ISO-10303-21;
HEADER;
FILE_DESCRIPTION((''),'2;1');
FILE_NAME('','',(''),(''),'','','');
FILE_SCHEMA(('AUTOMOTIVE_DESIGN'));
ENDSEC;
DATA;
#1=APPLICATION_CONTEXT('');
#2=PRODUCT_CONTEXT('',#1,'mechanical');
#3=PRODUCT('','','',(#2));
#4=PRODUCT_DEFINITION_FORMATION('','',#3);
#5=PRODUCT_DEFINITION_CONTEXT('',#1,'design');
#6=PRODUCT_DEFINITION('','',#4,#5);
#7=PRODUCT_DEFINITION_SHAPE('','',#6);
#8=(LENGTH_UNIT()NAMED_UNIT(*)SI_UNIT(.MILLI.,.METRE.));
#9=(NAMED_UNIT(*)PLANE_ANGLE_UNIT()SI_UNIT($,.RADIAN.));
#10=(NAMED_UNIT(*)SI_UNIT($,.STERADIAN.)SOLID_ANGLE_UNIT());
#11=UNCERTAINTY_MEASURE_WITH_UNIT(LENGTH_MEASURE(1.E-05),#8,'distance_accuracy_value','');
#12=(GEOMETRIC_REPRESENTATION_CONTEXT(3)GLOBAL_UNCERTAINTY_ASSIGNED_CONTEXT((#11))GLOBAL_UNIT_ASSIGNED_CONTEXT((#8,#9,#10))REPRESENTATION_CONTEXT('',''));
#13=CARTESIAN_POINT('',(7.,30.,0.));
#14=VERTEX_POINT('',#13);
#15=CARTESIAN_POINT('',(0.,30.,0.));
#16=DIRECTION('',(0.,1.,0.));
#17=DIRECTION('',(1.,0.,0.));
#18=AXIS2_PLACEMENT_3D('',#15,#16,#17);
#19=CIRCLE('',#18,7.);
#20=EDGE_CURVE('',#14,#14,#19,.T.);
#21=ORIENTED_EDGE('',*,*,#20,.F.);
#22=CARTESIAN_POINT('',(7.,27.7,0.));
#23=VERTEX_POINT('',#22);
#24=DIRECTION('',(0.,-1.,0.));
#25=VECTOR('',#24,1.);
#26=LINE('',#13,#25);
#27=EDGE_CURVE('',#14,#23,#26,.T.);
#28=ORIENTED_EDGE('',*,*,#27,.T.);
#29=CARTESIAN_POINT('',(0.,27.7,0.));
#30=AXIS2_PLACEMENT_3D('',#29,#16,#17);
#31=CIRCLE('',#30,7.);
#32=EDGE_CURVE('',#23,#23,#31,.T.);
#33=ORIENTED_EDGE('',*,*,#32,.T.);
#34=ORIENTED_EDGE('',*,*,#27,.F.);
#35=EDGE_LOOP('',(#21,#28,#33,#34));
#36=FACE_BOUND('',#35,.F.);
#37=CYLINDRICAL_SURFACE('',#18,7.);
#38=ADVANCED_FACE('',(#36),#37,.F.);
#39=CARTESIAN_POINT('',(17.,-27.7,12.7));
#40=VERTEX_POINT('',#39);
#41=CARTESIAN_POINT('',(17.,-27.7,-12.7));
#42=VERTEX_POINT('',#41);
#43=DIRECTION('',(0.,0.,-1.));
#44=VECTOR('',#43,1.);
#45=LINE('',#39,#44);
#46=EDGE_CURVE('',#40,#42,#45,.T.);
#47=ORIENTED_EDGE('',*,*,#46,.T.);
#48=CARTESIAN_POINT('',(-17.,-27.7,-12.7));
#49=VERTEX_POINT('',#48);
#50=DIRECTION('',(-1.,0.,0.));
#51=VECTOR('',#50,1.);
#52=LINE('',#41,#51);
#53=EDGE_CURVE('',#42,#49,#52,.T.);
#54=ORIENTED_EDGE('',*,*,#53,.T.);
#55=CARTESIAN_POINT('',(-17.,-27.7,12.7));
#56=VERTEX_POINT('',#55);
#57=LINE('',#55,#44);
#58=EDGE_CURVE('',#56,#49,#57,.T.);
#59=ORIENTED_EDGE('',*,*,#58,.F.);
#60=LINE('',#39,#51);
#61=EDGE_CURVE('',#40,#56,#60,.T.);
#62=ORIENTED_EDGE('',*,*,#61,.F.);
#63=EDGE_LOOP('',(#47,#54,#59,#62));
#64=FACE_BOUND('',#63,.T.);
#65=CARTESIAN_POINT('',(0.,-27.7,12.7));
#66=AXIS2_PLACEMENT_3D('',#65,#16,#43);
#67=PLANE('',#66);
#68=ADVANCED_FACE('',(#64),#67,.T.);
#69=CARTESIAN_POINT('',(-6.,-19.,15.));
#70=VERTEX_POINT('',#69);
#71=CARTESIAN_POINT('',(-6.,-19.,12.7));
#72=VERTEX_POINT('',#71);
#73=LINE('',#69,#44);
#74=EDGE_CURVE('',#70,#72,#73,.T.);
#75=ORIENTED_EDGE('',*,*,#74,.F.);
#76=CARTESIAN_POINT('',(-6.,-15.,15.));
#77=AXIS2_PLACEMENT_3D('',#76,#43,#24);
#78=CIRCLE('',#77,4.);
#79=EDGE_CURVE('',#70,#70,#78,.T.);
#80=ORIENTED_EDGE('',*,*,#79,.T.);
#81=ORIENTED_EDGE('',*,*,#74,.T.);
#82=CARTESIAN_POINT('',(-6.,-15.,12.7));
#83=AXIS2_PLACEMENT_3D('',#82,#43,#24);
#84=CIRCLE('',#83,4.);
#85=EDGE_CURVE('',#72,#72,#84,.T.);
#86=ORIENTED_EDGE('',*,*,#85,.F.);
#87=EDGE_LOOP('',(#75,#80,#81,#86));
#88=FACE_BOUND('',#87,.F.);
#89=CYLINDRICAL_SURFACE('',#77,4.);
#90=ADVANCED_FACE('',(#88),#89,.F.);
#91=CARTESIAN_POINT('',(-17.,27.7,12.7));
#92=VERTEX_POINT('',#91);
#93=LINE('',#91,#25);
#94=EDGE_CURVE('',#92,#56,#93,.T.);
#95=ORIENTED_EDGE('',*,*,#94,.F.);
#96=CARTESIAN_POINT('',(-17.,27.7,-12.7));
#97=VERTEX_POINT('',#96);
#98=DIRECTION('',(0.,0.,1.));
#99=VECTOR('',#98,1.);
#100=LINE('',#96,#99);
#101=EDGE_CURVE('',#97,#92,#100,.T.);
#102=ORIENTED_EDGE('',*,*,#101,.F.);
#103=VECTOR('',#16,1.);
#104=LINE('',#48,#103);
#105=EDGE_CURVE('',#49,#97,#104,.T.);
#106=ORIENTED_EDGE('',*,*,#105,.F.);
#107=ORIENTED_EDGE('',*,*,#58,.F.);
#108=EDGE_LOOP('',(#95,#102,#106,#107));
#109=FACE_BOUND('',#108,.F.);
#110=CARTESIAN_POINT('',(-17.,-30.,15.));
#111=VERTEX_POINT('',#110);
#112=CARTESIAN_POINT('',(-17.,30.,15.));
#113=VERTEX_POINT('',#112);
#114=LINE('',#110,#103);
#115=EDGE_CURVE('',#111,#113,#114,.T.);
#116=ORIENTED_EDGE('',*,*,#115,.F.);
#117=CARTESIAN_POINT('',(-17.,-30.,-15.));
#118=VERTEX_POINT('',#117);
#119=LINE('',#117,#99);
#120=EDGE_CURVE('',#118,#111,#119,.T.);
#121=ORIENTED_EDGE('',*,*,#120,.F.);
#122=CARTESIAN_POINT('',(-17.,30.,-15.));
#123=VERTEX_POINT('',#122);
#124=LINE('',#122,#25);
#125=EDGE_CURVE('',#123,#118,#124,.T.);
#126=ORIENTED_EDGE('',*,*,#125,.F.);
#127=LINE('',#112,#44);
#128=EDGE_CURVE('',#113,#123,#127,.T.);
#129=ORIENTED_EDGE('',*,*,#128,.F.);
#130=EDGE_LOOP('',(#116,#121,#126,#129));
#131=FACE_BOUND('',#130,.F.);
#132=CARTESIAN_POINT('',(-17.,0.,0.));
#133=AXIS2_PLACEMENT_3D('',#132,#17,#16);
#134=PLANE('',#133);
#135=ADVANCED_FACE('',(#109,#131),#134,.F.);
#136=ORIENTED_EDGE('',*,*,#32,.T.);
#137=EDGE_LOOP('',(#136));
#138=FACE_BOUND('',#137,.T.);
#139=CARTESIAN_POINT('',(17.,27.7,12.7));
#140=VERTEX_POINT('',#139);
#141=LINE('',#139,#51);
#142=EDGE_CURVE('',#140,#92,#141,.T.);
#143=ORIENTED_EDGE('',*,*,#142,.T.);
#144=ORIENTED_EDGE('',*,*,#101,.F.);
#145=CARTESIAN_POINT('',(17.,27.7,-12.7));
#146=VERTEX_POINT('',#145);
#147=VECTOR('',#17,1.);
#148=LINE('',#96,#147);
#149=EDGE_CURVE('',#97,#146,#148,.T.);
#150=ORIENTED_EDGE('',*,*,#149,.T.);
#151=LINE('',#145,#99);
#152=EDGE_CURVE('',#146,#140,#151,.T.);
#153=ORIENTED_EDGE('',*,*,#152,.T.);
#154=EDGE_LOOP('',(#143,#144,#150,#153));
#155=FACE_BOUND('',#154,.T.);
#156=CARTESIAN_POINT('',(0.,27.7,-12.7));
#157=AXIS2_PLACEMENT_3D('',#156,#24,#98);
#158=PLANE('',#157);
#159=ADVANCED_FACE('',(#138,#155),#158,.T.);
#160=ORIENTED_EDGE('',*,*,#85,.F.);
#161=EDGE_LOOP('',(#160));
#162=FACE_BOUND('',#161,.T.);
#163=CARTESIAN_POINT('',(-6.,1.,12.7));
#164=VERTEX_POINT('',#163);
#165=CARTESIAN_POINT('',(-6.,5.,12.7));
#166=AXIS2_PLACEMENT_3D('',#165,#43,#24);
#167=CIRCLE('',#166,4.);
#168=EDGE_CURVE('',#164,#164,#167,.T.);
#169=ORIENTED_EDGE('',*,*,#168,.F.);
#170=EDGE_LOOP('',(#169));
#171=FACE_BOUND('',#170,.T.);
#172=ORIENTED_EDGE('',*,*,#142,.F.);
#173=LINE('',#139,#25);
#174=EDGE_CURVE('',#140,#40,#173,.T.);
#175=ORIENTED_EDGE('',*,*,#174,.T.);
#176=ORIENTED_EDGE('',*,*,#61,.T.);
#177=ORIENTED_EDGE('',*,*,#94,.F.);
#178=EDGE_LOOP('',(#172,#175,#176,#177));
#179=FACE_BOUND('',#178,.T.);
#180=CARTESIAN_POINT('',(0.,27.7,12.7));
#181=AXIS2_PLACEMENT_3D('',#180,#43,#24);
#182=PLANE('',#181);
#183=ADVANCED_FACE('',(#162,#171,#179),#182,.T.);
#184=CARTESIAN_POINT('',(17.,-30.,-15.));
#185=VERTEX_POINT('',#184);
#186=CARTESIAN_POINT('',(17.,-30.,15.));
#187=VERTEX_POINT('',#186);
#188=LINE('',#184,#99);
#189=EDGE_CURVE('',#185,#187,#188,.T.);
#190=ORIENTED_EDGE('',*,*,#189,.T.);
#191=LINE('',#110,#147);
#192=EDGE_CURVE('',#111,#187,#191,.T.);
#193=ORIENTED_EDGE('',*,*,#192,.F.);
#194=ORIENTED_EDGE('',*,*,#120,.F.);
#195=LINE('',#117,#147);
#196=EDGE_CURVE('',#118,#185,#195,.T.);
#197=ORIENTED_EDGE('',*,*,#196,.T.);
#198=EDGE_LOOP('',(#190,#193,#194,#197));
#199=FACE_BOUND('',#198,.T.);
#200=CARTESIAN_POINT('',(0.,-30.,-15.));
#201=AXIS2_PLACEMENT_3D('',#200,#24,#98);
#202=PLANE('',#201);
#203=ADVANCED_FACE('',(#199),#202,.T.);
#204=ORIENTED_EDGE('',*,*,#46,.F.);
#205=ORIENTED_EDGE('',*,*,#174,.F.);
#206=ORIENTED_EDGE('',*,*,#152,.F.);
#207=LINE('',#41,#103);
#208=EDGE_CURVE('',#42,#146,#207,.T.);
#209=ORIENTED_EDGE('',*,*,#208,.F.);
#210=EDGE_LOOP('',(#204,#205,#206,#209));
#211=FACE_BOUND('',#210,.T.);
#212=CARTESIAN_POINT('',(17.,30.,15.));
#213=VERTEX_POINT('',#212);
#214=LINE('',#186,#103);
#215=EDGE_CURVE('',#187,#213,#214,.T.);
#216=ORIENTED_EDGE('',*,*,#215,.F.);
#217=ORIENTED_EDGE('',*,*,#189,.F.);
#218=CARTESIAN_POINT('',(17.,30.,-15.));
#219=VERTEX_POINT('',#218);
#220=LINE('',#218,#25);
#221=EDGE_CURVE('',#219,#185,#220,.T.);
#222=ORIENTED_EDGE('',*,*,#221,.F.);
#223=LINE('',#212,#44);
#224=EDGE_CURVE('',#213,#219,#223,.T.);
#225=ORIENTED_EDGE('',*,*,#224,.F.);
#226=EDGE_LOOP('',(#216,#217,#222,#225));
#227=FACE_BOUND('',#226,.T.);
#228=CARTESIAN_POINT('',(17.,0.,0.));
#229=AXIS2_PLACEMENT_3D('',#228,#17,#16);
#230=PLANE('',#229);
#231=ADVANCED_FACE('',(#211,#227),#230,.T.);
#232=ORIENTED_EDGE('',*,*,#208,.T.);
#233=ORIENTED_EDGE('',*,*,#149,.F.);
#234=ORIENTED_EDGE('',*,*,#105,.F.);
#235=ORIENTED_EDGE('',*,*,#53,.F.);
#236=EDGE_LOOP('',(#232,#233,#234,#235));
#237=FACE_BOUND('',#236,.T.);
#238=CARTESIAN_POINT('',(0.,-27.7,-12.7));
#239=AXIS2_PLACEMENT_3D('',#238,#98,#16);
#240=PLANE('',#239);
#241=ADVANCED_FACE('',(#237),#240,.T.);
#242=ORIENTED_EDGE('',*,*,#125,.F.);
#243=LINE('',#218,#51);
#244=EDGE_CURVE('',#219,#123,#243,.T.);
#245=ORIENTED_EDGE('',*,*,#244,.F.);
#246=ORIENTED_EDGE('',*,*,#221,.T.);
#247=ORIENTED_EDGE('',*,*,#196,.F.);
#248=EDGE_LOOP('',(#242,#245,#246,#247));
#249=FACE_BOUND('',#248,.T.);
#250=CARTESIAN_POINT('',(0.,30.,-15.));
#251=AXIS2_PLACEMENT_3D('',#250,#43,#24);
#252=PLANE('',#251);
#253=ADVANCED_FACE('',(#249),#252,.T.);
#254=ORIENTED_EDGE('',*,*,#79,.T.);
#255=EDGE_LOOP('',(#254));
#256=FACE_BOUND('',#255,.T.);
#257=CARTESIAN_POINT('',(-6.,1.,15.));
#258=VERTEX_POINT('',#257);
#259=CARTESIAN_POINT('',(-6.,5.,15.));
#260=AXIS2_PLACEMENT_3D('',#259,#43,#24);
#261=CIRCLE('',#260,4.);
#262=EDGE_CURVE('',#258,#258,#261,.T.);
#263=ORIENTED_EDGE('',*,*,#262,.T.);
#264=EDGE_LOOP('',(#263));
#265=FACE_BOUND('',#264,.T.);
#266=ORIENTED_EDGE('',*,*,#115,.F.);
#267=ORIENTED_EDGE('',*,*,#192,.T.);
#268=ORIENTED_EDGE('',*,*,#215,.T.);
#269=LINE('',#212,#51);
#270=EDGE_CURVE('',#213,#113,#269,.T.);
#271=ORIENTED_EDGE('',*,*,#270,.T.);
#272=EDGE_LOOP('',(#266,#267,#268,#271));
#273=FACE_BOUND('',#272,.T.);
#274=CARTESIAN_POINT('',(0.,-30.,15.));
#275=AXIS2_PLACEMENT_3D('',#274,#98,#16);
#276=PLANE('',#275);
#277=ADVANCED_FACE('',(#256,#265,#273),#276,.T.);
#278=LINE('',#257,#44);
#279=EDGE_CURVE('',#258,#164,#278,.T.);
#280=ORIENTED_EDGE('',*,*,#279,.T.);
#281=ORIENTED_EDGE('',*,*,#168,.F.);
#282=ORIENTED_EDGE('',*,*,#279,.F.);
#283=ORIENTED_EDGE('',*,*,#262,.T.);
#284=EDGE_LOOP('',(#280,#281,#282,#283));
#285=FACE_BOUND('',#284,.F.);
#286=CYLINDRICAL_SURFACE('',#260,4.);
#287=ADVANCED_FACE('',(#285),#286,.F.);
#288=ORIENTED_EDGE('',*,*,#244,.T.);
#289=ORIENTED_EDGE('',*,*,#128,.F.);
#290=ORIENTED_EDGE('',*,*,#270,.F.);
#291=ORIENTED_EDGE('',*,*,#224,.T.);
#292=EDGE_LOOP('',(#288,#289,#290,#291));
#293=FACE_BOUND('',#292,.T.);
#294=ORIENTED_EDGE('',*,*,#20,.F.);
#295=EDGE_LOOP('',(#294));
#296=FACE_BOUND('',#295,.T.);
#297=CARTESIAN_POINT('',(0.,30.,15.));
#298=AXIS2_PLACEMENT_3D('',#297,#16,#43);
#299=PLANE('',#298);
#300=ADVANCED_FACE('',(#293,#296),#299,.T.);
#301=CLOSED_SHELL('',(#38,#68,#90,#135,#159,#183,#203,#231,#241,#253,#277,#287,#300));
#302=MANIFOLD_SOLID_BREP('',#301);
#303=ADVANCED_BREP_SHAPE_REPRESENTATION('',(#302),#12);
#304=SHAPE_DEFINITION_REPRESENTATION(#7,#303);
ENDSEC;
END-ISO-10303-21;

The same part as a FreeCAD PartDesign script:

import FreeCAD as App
import Part
import Sketcher

V = App.Vector
Q = App.Units.Quantity


def add_polygon(sketch, points):
    """Adds a closed chain of lines whose ends are joined by coincident constraints."""
    first, n = sketch.GeometryCount, len(points)
    for a, b in zip(points, points[1:] + points[:1]):
        sketch.addGeometry(Part.LineSegment(App.Vector(*a, 0), App.Vector(*b, 0)), False)
    for i in range(n):
        sketch.addConstraint(Sketcher.Constraint("Coincident", first + i, 2, first + (i + 1) % n, 1))

doc = App.newDocument("Part")
body = doc.addObject("PartDesign::Body", "Body")

# Sketch on YZ plane
sketch1 = doc.addObject("Sketcher::SketchObject", "Sketch")
body.addObject(sketch1)
sketch1.AttachmentSupport = (doc.YZ_Plane, [""])
sketch1.MapMode = "FlatFace"
add_polygon(sketch1, [(30, 15), (-30, 15), (-30, -15), (30, -15)])  # lines 0-3
add_polygon(sketch1, [(28, 13), (28, -13), (-28, -13), (-28, 13)])  # lines 4-7
sketch1.addConstraint([
    Sketcher.Constraint("Horizontal", 0),
    Sketcher.Constraint("Vertical", 1),
    Sketcher.Constraint("Horizontal", 2),
    Sketcher.Constraint("Vertical", 3),
    Sketcher.Constraint("Vertical", 4),
    Sketcher.Constraint("Horizontal", 5),
    Sketcher.Constraint("Vertical", 6),
    Sketcher.Constraint("Horizontal", 7),
    Sketcher.Constraint("Symmetric", 0, 2, 2, 2, -1, 1),
    Sketcher.Constraint("Symmetric", 4, 2, 6, 2, -1, 1),
    Sketcher.Constraint("DistanceX", 0, 2, 0, 1, Q("60 mm")),
    Sketcher.Constraint("DistanceY", 1, 2, 1, 1, Q("30 mm")),
    Sketcher.Constraint("DistanceX", 4, 2, 2, 2, Q("2.3 mm")),
    Sketcher.Constraint("DistanceY", 2, 2, 4, 2, Q("2.3 mm")),
])
pad1 = doc.addObject("PartDesign::Pad", "Pad")
body.addObject(pad1)
pad1.Profile = sketch1
pad1.Length = 34
pad1.Midplane = True

# Sketch on XZ plane
sketch2 = doc.addObject("Sketcher::SketchObject", "Sketch001")
body.addObject(sketch2)
sketch2.AttachmentSupport = (doc.XZ_Plane, [""])
sketch2.MapMode = "FlatFace"
sketch2.AttachmentOffset = App.Placement(V(0, 0, -30), App.Rotation())
sketch2.addGeometry(Part.Circle(V(0, 0, 0), V(0, 0, 1), 7), False)
sketch2.addConstraint([
    Sketcher.Constraint("Coincident", 0, 3, -1, 1),
    Sketcher.Constraint("Diameter", 0, Q("14 mm")),
])
pocket1 = doc.addObject("PartDesign::Pocket", "Pocket")
body.addObject(pocket1)
pocket1.Profile = sketch2
pocket1.Length = 5
pocket1.Reversed = True

# Sketch on XY plane
sketch3 = doc.addObject("Sketcher::SketchObject", "Sketch002")
body.addObject(sketch3)
sketch3.AttachmentSupport = (doc.XY_Plane, [""])
sketch3.MapMode = "FlatFace"
sketch3.AttachmentOffset = App.Placement(V(0, 0, 15), App.Rotation())
sketch3.addGeometry([
    Part.Circle(V(-6, -15, 0), V(0, 0, 1), 4),
    Part.Circle(V(-6, 5, 0), V(0, 0, 1), 4),
], False)
sketch3.addConstraint([
    Sketcher.Constraint("Equal", 0, 1),
    Sketcher.Constraint("Vertical", 0, 3, 1, 3),
    Sketcher.Constraint("Diameter", 0, Q("8 mm")),
    Sketcher.Constraint("DistanceX", 0, 3, -1, 1, Q("6 mm")),
    Sketcher.Constraint("DistanceY", 0, 3, -1, 1, Q("15 mm")),
    Sketcher.Constraint("DistanceY", -1, 1, 1, 3, Q("5 mm")),
])
doc.recompute()
hole = doc.addObject("PartDesign::Hole", "Hole")
body.addObject(hole)
hole.Profile = sketch3
hole.ThreadType = "None"
hole.Diameter = 8
hole.DepthType = "Dimension"
hole.Depth = 4
hole.DrillPoint = "Angled"
hole.DrillPointAngle = 118

doc.recompute()
